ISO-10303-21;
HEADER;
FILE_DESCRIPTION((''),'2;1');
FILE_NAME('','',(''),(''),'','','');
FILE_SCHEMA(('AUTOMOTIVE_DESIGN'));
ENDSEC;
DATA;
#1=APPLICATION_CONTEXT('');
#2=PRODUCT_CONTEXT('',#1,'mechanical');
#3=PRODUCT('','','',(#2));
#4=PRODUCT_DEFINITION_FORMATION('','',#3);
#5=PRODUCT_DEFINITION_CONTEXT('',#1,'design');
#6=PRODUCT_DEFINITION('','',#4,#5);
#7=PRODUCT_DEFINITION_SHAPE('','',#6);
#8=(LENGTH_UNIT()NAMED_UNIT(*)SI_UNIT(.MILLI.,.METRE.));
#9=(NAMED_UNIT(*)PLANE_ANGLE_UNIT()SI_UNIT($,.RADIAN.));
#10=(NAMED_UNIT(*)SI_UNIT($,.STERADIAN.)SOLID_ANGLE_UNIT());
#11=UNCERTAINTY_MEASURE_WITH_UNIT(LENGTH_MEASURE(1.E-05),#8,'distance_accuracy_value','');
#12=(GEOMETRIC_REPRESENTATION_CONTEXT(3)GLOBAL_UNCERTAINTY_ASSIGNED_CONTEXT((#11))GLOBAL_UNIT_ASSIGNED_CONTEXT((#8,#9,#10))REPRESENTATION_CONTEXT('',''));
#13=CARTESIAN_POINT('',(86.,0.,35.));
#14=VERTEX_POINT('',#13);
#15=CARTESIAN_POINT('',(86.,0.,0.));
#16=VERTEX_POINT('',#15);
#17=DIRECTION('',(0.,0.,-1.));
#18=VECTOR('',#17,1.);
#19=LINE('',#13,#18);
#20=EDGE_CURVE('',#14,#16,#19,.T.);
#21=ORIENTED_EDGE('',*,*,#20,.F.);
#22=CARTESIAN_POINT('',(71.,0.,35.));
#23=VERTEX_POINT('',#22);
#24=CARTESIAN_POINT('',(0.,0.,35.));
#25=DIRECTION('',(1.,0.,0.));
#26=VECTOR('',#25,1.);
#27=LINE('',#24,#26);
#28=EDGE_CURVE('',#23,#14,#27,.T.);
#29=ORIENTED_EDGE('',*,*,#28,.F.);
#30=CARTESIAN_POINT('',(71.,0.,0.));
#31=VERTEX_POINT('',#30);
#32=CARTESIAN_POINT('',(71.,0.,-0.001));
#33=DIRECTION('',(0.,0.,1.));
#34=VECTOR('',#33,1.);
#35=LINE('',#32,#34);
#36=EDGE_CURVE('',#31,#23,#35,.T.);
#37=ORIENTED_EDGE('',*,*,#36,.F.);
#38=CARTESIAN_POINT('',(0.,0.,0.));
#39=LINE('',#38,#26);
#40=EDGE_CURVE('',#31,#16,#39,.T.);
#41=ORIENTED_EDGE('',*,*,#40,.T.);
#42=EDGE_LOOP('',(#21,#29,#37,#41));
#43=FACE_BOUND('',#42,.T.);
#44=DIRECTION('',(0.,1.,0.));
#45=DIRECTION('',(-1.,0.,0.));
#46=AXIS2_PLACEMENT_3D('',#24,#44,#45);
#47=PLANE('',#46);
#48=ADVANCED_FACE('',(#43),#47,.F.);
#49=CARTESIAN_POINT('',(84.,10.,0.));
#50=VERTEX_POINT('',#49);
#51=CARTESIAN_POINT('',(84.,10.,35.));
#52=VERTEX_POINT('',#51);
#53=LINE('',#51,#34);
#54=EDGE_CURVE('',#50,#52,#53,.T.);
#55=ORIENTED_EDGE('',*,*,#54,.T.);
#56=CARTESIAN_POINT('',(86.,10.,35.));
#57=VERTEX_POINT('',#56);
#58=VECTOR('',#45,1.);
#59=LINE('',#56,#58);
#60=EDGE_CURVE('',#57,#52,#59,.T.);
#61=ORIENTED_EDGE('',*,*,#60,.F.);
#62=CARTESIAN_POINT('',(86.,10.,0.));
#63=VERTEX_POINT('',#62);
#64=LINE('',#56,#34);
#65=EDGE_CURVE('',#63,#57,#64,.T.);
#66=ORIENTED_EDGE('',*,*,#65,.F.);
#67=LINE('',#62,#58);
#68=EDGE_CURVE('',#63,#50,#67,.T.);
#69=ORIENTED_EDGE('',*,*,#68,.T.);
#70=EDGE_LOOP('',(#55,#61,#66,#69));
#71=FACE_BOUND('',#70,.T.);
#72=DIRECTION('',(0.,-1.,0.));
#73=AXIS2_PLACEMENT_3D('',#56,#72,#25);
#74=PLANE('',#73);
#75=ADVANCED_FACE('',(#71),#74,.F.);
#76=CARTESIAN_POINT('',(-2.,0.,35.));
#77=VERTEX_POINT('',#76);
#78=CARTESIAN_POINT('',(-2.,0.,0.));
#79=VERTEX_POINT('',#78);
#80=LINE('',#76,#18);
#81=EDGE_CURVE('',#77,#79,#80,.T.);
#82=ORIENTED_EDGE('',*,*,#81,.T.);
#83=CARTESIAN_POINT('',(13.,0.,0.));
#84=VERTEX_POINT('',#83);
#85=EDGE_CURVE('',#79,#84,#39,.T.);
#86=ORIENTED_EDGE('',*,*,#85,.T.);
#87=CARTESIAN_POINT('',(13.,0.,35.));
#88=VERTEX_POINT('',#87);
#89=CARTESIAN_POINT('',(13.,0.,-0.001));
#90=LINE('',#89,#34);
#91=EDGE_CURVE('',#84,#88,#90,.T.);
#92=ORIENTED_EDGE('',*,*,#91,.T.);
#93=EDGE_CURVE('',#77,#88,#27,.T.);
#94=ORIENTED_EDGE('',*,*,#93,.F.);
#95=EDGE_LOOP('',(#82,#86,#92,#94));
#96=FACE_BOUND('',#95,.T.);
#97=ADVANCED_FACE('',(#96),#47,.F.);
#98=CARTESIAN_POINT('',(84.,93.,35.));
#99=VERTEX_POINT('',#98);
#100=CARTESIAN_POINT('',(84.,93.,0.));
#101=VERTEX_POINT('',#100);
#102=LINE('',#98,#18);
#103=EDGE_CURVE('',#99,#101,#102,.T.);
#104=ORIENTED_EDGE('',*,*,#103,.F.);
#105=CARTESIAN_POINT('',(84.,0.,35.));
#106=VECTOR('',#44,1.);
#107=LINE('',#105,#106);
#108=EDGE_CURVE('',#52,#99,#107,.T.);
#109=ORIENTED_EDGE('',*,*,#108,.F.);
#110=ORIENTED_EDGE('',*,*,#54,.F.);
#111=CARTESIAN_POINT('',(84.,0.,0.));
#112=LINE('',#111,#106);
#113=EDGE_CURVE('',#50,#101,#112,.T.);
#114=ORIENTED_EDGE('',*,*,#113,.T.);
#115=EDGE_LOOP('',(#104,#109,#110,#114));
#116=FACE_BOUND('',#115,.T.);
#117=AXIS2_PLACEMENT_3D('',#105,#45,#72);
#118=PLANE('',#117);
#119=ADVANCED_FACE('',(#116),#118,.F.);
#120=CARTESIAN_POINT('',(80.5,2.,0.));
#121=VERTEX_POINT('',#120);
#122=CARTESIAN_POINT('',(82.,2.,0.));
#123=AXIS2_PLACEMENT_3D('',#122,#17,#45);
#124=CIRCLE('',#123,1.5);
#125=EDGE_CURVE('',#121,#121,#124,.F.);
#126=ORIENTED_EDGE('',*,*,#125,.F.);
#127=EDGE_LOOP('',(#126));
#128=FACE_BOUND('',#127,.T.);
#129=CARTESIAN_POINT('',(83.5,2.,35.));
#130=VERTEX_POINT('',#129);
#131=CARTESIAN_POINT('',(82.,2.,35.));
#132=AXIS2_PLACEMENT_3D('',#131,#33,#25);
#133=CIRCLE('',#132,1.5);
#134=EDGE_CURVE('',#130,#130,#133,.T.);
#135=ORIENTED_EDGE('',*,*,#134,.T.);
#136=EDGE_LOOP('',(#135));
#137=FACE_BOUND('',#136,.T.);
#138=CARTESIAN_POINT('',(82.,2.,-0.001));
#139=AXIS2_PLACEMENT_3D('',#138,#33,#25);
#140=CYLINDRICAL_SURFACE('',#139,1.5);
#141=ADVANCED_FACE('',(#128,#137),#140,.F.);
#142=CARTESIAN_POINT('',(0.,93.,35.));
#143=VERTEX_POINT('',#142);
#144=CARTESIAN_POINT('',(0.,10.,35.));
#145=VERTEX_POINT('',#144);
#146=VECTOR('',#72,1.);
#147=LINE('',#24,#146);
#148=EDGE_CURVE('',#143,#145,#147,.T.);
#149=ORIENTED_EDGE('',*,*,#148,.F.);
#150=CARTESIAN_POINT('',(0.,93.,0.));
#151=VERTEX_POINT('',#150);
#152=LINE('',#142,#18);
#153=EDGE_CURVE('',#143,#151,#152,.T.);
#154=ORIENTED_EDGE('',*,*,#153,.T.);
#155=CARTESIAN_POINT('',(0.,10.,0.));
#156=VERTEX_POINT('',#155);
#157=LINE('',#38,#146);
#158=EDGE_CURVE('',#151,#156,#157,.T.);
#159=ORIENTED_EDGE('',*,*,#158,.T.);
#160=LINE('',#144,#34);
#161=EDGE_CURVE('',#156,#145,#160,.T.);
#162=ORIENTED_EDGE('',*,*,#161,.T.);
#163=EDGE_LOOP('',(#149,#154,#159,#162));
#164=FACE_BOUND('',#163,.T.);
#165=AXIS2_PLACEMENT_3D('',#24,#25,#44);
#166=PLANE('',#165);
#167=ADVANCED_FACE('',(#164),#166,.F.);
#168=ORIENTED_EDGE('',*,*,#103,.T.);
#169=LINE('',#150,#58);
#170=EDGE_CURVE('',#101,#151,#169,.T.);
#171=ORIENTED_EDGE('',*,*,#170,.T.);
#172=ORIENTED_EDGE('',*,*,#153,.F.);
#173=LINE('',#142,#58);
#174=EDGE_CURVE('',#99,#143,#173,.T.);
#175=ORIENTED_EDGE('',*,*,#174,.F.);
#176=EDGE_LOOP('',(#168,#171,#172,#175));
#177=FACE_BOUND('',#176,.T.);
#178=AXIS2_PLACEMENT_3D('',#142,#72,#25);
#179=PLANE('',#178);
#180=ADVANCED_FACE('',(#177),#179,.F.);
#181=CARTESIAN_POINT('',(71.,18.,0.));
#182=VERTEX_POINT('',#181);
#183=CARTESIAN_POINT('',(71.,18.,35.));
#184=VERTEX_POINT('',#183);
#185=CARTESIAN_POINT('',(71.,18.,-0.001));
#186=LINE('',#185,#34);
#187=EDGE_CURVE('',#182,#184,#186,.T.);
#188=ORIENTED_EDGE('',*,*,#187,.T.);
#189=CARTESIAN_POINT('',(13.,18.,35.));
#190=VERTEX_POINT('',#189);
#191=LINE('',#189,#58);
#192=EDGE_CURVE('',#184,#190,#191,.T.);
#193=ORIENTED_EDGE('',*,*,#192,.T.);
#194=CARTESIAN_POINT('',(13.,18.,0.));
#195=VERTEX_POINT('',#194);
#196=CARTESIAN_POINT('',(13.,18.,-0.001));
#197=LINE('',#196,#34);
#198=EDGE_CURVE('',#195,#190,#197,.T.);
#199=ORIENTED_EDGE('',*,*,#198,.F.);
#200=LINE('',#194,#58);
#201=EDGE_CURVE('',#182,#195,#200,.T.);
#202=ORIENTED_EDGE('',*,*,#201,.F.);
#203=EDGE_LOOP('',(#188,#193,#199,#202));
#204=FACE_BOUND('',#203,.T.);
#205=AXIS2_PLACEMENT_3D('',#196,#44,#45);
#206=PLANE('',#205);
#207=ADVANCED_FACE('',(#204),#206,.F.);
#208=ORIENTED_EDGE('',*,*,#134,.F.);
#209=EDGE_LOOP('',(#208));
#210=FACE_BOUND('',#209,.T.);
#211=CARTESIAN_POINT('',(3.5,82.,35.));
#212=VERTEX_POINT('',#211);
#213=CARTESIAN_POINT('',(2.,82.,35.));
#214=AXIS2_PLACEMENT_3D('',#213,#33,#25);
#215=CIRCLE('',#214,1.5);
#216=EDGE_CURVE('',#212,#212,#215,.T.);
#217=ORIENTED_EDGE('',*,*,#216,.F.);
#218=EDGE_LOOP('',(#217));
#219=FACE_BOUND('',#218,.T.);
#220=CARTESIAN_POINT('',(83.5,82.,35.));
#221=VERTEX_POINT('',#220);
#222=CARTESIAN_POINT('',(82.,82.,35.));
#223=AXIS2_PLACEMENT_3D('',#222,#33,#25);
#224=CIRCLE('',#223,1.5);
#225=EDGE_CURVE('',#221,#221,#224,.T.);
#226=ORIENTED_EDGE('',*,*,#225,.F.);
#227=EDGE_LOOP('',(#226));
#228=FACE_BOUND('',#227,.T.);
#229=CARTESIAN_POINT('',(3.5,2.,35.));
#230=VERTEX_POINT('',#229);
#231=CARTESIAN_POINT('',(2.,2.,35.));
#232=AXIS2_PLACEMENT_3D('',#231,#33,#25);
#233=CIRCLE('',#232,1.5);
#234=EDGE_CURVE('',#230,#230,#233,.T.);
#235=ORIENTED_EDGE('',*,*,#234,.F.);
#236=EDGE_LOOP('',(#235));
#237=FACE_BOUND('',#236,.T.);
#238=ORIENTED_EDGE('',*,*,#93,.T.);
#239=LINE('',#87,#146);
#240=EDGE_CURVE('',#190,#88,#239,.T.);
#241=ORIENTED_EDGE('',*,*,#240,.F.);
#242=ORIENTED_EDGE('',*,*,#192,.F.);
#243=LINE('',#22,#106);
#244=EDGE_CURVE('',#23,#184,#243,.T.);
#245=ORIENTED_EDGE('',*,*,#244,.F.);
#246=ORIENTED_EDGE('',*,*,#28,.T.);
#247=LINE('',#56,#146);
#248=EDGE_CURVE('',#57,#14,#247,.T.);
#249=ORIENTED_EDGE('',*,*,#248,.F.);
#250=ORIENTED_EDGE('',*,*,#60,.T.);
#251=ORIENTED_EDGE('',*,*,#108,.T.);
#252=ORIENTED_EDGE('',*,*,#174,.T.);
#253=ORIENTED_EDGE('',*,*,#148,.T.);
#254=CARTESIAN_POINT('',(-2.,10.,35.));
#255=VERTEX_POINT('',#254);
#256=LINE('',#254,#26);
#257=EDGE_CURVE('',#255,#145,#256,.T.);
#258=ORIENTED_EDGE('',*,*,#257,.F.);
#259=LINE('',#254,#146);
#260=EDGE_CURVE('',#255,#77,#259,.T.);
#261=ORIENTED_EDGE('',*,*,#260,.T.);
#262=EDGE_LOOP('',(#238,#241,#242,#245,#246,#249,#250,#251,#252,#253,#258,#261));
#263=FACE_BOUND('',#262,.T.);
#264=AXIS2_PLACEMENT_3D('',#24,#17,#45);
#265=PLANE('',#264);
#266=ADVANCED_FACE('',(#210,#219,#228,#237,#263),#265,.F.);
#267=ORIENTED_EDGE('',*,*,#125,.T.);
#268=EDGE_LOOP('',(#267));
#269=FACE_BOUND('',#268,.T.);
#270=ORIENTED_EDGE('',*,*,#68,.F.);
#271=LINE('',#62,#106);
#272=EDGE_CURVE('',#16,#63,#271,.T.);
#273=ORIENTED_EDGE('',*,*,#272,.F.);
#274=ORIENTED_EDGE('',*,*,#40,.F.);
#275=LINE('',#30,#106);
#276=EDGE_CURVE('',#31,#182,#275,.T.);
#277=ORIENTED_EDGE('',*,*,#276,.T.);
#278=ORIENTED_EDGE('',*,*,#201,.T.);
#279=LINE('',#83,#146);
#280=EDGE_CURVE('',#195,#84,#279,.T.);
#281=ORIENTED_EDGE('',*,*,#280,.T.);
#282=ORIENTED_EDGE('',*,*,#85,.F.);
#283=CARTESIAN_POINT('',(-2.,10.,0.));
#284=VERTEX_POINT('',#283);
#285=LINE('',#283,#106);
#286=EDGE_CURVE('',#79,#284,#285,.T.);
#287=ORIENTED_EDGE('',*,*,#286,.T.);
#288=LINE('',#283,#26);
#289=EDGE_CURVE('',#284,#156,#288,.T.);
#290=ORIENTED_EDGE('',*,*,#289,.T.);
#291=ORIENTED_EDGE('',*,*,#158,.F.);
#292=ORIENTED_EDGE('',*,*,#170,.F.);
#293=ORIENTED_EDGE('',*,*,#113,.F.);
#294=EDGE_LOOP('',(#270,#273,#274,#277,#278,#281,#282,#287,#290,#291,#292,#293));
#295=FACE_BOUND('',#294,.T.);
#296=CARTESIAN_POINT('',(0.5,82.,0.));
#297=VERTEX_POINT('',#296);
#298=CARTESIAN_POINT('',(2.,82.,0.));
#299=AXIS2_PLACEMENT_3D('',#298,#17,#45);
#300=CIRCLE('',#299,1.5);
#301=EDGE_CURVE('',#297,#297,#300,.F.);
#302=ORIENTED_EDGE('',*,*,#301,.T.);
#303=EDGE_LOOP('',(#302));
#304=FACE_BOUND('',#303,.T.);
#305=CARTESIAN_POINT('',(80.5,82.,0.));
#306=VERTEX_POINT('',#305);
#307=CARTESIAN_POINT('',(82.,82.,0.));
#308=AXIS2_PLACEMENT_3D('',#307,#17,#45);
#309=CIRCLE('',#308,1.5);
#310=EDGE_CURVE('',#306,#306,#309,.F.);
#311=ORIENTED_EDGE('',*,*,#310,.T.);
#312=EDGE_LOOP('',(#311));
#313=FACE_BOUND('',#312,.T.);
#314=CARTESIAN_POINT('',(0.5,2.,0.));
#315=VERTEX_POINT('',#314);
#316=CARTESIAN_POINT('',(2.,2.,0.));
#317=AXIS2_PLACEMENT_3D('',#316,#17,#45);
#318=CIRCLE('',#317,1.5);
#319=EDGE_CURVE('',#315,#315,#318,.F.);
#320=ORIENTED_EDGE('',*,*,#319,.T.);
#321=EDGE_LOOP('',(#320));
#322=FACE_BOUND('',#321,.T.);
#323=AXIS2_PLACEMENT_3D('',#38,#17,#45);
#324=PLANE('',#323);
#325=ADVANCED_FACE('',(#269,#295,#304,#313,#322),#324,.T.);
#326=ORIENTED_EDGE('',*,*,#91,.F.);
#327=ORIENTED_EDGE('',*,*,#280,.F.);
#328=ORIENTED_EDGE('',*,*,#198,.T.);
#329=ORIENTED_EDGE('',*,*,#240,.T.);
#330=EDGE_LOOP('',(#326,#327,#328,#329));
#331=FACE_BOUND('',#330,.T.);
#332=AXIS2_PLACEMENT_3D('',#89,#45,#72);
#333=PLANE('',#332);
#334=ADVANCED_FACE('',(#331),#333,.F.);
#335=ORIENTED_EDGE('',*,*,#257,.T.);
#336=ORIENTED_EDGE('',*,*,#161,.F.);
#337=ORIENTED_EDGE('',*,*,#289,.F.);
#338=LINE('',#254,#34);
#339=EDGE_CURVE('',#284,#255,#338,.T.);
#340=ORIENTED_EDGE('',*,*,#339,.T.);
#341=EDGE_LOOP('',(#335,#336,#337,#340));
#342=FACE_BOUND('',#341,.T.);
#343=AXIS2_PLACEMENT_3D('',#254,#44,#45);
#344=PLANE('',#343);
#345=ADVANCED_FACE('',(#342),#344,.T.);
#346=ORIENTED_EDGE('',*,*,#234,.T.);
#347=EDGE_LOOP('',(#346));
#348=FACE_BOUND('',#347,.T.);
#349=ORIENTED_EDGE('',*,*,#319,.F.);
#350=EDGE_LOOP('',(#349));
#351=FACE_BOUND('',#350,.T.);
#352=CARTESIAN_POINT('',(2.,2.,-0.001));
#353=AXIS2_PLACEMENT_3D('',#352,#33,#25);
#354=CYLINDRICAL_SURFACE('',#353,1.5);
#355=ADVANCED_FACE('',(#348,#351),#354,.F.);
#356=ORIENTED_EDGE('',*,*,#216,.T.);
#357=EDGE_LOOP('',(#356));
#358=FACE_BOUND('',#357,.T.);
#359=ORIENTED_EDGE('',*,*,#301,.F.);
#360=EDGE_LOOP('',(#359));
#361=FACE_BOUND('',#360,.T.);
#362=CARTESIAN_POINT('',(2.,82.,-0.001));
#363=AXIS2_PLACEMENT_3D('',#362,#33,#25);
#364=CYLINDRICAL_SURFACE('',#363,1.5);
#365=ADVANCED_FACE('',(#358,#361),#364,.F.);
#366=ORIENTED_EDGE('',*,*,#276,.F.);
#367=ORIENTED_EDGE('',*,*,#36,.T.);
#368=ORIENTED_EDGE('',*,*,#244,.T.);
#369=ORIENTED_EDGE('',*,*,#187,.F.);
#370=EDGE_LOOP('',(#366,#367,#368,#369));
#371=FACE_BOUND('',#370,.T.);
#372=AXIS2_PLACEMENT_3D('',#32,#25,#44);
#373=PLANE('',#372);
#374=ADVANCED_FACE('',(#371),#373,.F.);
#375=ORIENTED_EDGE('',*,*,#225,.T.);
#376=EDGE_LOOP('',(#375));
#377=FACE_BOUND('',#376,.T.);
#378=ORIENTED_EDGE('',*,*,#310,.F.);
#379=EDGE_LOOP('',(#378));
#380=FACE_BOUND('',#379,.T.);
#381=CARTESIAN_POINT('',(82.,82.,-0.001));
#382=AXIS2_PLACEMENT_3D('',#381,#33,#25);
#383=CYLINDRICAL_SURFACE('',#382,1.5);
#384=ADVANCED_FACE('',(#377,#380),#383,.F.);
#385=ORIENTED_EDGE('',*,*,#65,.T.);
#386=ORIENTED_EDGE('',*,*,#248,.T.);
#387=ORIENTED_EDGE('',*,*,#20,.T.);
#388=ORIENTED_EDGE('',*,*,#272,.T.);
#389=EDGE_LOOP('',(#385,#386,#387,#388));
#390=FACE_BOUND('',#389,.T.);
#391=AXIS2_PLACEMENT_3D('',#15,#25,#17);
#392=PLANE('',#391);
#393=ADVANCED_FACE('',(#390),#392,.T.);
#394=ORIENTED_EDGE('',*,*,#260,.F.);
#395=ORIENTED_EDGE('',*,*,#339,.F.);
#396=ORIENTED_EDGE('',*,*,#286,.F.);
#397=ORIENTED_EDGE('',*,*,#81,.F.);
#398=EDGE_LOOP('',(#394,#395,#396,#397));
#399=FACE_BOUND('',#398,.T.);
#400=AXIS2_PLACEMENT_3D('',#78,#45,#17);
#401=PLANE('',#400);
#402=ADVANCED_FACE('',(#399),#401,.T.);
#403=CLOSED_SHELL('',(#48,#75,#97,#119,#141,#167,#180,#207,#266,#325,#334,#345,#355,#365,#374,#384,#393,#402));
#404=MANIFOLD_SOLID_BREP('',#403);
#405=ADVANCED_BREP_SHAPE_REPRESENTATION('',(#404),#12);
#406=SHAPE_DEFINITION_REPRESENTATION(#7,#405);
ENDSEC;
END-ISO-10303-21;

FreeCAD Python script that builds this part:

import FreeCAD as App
import Part
import Sketcher

V = App.Vector


def add_polygon(sketch, points):
    """Adds a closed chain of lines whose ends are joined by coincident constraints."""
    first, n = sketch.GeometryCount, len(points)
    for a, b in zip(points, points[1:] + points[:1]):
        sketch.addGeometry(Part.LineSegment(App.Vector(*a, 0), App.Vector(*b, 0)), False)
    for i in range(n):
        sketch.addConstraint(Sketcher.Constraint("Coincident", first + i, 2, first + (i + 1) % n, 1))

doc = App.newDocument("Part")
params = doc.addObject("Spreadsheet::Sheet", "Params")
for row, (alias, value) in enumerate([
    ("sketch1_width", "84 mm"),
    ("sketch1_height", "93 mm"),
    ("pad1_length", "35 mm"),
    ("sketch2_diameter", "3 mm"),
    ("sketch3_diameter", "3 mm"),
    ("sketch4_diameter", "3 mm"),
    ("sketch5_diameter", "3 mm"),
    ("sketch6_width", "58 mm"),
    ("sketch6_height", "18 mm"),
    ("sketch7_width", "10 mm"),
    ("sketch7_height", "35 mm"),
    ("pad2_length", "2 mm"),
], start=1):
    params.set(f"A{row}", alias)
    params.set(f"B{row}", "=" + value)
    params.setAlias(f"B{row}", alias)

body = doc.addObject("PartDesign::Body", "Body")

# Sketch on XY plane
sketch1 = doc.addObject("Sketcher::SketchObject", "Sketch")
body.addObject(sketch1)
sketch1.AttachmentSupport = (doc.XY_Plane, [""])
sketch1.MapMode = "FlatFace"
add_polygon(sketch1, [(0, 93), (0, 0), (84, 0), (84, 93)])  # lines 0-3
sketch1.addConstraint(Sketcher.Constraint("Vertical", 0))
sketch1.addConstraint(Sketcher.Constraint("Horizontal", 1))
sketch1.addConstraint(Sketcher.Constraint("Vertical", 2))
sketch1.addConstraint(Sketcher.Constraint("Horizontal", 3))
sketch1.addConstraint(Sketcher.Constraint("Coincident", 0, 2, -1, 1))
sketch1.addConstraint(Sketcher.Constraint("DistanceX", 1, 1, 1, 2, 84.0))
sketch1.addConstraint(Sketcher.Constraint("DistanceY", 0, 2, 0, 1, 93.0))
sketch1.setExpression("Constraints[9]", "Params.sketch1_width")
sketch1.setExpression("Constraints[10]", "Params.sketch1_height")
pad1 = doc.addObject("PartDesign::Pad", "Pad")
body.addObject(pad1)
pad1.Profile = sketch1
pad1.setExpression("Length", "Params.pad1_length")

# Sketch on XY plane
sketch2 = doc.addObject("Sketcher::SketchObject", "Sketch001")
body.addObject(sketch2)
sketch2.AttachmentSupport = (doc.XY_Plane, [""])
sketch2.MapMode = "FlatFace"
sketch2.AttachmentOffset = App.Placement(V(0, 0, 35), App.Rotation())
sketch2.addGeometry(Part.Circle(V(82, 2, 0), V(0, 0, 1), 1.5), False)
sketch2.addConstraint(Sketcher.Constraint("Diameter", 0, 3.0))
sketch2.addConstraint(Sketcher.Constraint("DistanceX", -1, 1, 0, 3, 82.0))
sketch2.addConstraint(Sketcher.Constraint("DistanceY", -1, 1, 0, 3, 2.0))
sketch2.setExpression("Constraints[0]", "Params.sketch2_diameter")
pocket1 = doc.addObject("PartDesign::Pocket", "Pocket")
body.addObject(pocket1)
pocket1.Profile = sketch2
pocket1.Type = "UpToFirst"

# Sketch on XY plane
sketch3 = doc.addObject("Sketcher::SketchObject", "Sketch002")
body.addObject(sketch3)
sketch3.AttachmentSupport = (doc.XY_Plane, [""])
sketch3.MapMode = "FlatFace"
sketch3.AttachmentOffset = App.Placement(V(0, 0, 35), App.Rotation())
sketch3.addGeometry(Part.Circle(V(2, 2, 0), V(0, 0, 1), 1.5), False)
sketch3.addConstraint(Sketcher.Constraint("Diameter", 0, 3.0))
sketch3.addConstraint(Sketcher.Constraint("DistanceX", -1, 1, 0, 3, 2.0))
sketch3.addConstraint(Sketcher.Constraint("DistanceY", -1, 1, 0, 3, 2.0))
sketch3.setExpression("Constraints[0]", "Params.sketch3_diameter")
pocket2 = doc.addObject("PartDesign::Pocket", "Pocket001")
body.addObject(pocket2)
pocket2.Profile = sketch3
pocket2.Type = "UpToFirst"

# Sketch on XY plane
sketch4 = doc.addObject("Sketcher::SketchObject", "Sketch003")
body.addObject(sketch4)
sketch4.AttachmentSupport = (doc.XY_Plane, [""])
sketch4.MapMode = "FlatFace"
sketch4.AttachmentOffset = App.Placement(V(0, 0, 35), App.Rotation())
sketch4.addGeometry(Part.Circle(V(82, 82, 0), V(0, 0, 1), 1.5), False)
sketch4.addConstraint(Sketcher.Constraint("Diameter", 0, 3.0))
sketch4.addConstraint(Sketcher.Constraint("DistanceX", -1, 1, 0, 3, 82.0))
sketch4.addConstraint(Sketcher.Constraint("DistanceY", -1, 1, 0, 3, 82.0))
sketch4.setExpression("Constraints[0]", "Params.sketch4_diameter")
pocket3 = doc.addObject("PartDesign::Pocket", "Pocket002")
body.addObject(pocket3)
pocket3.Profile = sketch4
pocket3.Type = "UpToFirst"

# Sketch on XY plane
sketch5 = doc.addObject("Sketcher::SketchObject", "Sketch004")
body.addObject(sketch5)
sketch5.AttachmentSupport = (doc.XY_Plane, [""])
sketch5.MapMode = "FlatFace"
sketch5.AttachmentOffset = App.Placement(V(0, 0, 35), App.Rotation())
sketch5.addGeometry(Part.Circle(V(2, 82, 0), V(0, 0, 1), 1.5), False)
sketch5.addConstraint(Sketcher.Constraint("Diameter", 0, 3.0))
sketch5.addConstraint(Sketcher.Constraint("DistanceX", -1, 1, 0, 3, 2.0))
sketch5.addConstraint(Sketcher.Constraint("DistanceY", -1, 1, 0, 3, 82.0))
sketch5.setExpression("Constraints[0]", "Params.sketch5_diameter")
pocket4 = doc.addObject("PartDesign::Pocket", "Pocket003")
body.addObject(pocket4)
pocket4.Profile = sketch5
pocket4.Type = "UpToFirst"

# Sketch on XY plane
sketch6 = doc.addObject("Sketcher::SketchObject", "Sketch005")
body.addObject(sketch6)
sketch6.AttachmentSupport = (doc.XY_Plane, [""])
sketch6.MapMode = "FlatFace"
sketch6.AttachmentOffset = App.Placement(V(0, 0, 35), App.Rotation())
add_polygon(sketch6, [(13, 18), (13, 0), (71, 0), (71, 18)])  # lines 0-3
sketch6.addConstraint(Sketcher.Constraint("Vertical", 0))
sketch6.addConstraint(Sketcher.Constraint("Horizontal", 1))
sketch6.addConstraint(Sketcher.Constraint("Vertical", 2))
sketch6.addConstraint(Sketcher.Constraint("Horizontal", 3))
sketch6.addConstraint(Sketcher.Constraint("PointOnObject", 0, 2, -1))
sketch6.addConstraint(Sketcher.Constraint("DistanceX", 1, 1, 1, 2, 58.0))
sketch6.addConstraint(Sketcher.Constraint("DistanceY", 0, 2, 0, 1, 18.0))
sketch6.addConstraint(Sketcher.Constraint("DistanceX", -1, 1, 0, 2, 13.0))
sketch6.setExpression("Constraints[9]", "Params.sketch6_width")
sketch6.setExpression("Constraints[10]", "Params.sketch6_height")
pocket5 = doc.addObject("PartDesign::Pocket", "Pocket004")
body.addObject(pocket5)
pocket5.Profile = sketch6
pocket5.Type = "UpToFirst"

# Sketch on YZ plane
sketch7 = doc.addObject("Sketcher::SketchObject", "Sketch006")
body.addObject(sketch7)
sketch7.AttachmentSupport = (doc.YZ_Plane, [""])
sketch7.MapMode = "FlatFace"
sketch7.AttachmentOffset = App.Placement(V(0, 0, 84), App.Rotation())
add_polygon(sketch7, [(10, 35), (0, 35), (0, 0), (10, 0)])  # lines 0-3
sketch7.addConstraint(Sketcher.Constraint("Horizontal", 0))
sketch7.addConstraint(Sketcher.Constraint("Vertical", 1))
sketch7.addConstraint(Sketcher.Constraint("Horizontal", 2))
sketch7.addConstraint(Sketcher.Constraint("Vertical", 3))
sketch7.addConstraint(Sketcher.Constraint("Coincident", 1, 2, -1, 1))
sketch7.addConstraint(Sketcher.Constraint("DistanceX", 0, 2, 0, 1, 10.0))
sketch7.addConstraint(Sketcher.Constraint("DistanceY", 1, 2, 1, 1, 35.0))
sketch7.setExpression("Constraints[9]", "Params.sketch7_width")
sketch7.setExpression("Constraints[10]", "Params.sketch7_height")
pad2 = doc.addObject("PartDesign::Pad", "Pad001")
body.addObject(pad2)
pad2.Profile = sketch7
pad2.setExpression("Length", "Params.pad2_length")
doc.recompute()

datumplane = doc.addObject("PartDesign::Plane", "DatumPlane")
body.addObject(datumplane)
datumplane.AttachmentSupport = (doc.YZ_Plane, [""])
datumplane.MapMode = "FlatFace"
datumplane.AttachmentOffset = App.Placement(V(0, 0, 42), App.Rotation())
mirrored = doc.addObject("PartDesign::Mirrored", "Mirrored")
body.addObject(mirrored)
mirrored.Originals = [pad2]
mirrored.MirrorPlane = (datumplane, [""])
body.Tip = mirrored

doc.recompute()
